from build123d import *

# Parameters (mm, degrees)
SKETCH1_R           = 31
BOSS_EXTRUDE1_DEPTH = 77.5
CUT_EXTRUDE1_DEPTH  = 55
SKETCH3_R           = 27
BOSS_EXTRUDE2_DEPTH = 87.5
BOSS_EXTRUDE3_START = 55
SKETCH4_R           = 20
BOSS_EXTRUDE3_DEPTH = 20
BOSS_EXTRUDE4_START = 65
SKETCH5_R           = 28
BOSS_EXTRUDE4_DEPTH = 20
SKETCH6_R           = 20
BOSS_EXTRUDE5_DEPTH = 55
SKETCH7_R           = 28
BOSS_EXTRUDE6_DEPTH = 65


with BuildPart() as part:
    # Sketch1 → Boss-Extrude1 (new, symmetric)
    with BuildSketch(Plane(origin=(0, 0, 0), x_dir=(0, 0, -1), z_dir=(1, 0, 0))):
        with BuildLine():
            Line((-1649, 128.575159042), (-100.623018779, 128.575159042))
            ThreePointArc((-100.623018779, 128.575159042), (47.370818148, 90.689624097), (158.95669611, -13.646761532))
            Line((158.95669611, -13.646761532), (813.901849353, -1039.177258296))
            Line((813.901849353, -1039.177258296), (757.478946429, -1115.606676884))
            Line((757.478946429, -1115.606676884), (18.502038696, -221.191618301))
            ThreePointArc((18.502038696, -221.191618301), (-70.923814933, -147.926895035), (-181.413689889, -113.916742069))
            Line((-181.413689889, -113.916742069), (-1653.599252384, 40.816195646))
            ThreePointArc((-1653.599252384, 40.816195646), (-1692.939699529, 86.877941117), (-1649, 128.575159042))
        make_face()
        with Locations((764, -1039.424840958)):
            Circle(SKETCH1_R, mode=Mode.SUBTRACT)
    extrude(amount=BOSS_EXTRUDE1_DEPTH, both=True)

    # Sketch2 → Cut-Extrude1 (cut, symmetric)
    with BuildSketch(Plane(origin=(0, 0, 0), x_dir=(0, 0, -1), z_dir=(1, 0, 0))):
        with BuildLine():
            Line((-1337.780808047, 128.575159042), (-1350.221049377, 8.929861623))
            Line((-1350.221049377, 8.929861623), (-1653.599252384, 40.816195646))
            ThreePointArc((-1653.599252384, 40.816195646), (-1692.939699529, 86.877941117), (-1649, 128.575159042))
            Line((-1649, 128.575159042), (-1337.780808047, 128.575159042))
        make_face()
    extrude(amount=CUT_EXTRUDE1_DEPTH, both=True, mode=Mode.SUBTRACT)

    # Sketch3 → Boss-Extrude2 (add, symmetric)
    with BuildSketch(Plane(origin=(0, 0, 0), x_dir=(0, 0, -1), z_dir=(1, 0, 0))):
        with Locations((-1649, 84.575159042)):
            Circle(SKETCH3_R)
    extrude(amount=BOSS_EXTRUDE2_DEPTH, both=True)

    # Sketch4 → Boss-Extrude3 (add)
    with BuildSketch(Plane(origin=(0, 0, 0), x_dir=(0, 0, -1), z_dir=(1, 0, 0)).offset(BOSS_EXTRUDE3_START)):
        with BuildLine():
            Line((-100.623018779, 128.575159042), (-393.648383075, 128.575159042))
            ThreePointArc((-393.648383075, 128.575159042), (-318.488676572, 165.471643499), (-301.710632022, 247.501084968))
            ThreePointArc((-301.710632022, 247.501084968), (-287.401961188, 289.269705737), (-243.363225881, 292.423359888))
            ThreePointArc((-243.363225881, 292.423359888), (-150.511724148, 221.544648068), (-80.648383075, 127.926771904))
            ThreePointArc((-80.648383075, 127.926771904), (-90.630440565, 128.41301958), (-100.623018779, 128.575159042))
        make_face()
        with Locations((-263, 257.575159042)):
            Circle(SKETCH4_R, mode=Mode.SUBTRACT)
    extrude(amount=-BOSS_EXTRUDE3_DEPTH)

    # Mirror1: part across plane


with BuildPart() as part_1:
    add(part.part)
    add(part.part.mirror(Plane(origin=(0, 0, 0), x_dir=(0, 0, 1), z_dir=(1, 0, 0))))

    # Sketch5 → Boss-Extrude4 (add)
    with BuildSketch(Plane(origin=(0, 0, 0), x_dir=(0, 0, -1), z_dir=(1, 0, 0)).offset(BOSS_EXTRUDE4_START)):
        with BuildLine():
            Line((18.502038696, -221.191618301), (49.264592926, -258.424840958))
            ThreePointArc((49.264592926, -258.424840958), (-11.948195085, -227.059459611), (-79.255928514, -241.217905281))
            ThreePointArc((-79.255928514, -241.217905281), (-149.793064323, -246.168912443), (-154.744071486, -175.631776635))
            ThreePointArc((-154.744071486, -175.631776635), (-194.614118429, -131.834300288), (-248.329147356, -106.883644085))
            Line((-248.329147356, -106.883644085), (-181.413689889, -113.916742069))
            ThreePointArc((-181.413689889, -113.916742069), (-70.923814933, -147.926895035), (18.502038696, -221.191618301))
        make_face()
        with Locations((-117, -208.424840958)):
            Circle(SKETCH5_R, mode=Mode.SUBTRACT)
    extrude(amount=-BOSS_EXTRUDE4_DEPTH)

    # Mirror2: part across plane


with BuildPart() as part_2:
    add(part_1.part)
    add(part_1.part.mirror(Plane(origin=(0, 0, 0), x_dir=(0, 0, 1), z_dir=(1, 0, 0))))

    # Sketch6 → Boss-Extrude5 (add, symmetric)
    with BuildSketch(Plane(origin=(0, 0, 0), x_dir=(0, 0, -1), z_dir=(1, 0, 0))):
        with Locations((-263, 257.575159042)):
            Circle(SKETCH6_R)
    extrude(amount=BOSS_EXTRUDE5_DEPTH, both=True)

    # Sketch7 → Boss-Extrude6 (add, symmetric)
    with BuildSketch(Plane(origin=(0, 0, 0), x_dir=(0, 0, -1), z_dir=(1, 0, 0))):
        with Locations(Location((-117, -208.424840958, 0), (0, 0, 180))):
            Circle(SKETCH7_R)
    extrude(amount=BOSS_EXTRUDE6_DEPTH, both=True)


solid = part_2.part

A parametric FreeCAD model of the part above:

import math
import FreeCAD as App
import Part
import Sketcher
from FreeCAD import Vector
Q = App.Units.Quantity

doc = App.newDocument("Part")
body = doc.addObject("PartDesign::Body", "Body")

# Sketch on YZ plane
sketch1 = body.newObject("Sketcher::SketchObject", "Sketch")
sketch1.AttachmentSupport = (doc.getObject("YZ_Plane"), [""])
sketch1.MapMode = "FlatFace"
sketch1.addGeometry(Part.LineSegment(Vector(128.575159, 100.623019, 0), Vector(128.575159, 1649, 0)), False)
sketch1.addGeometry(Part.ArcOfCircle(Part.Circle(Vector(84.575159, 1649, 0), Vector(0, 0, 1), 44), math.radians(0), math.radians(174)), False)
sketch1.addGeometry(Part.LineSegment(Vector(40.816196, 1653.599252, 0), Vector(-113.916742, 181.41369, 0)), False)
sketch1.addGeometry(Part.ArcOfCircle(Part.Circle(Vector(-412.273311, 212.772229, 0), Vector(0, 0, 1), 300), math.radians(-50.436057), math.radians(-6)), False)
sketch1.addGeometry(Part.LineSegment(Vector(-221.191618, -18.502039, 0), Vector(-1115.606677, -757.478946, 0)), False)
sketch1.addGeometry(Part.LineSegment(Vector(-1115.606677, -757.478946, 0), Vector(-1039.177258, -813.901849, 0)), False)
sketch1.addGeometry(Part.LineSegment(Vector(-1039.177258, -813.901849, 0), Vector(-13.646762, -158.956696, 0)), False)
sketch1.addGeometry(Part.ArcOfCircle(Part.Circle(Vector(-179.424841, 100.623019, 0), Vector(0, 0, 1), 308), math.radians(-57.436057), math.radians(0)), False)
sketch1.addGeometry(Part.Circle(Vector(-1039.424841, -764, 0), Vector(0, 0, 1), 31), False)
sketch1.addConstraint(Sketcher.Constraint("Tangent", 0, 2, 1, 1))
sketch1.addConstraint(Sketcher.Constraint("Tangent", 1, 2, 2, 1))
sketch1.addConstraint(Sketcher.Constraint("Tangent", 2, 2, 3, 2))
sketch1.addConstraint(Sketcher.Constraint("Tangent", 3, 1, 4, 1))
sketch1.addConstraint(Sketcher.Constraint("Coincident", 4, 2, 5, 1))
sketch1.addConstraint(Sketcher.Constraint("Coincident", 5, 2, 6, 1))
sketch1.addConstraint(Sketcher.Constraint("Tangent", 6, 2, 7, 1))
sketch1.addConstraint(Sketcher.Constraint("Tangent", 7, 2, 0, 1))
sketch1.addConstraint(Sketcher.Constraint("Vertical", 0))
sketch1.addConstraint(Sketcher.Constraint("Diameter", 8, 62.0))
sketch1.addConstraint(Sketcher.Constraint("Radius", 1, 44.0))
sketch1.addConstraint(Sketcher.Constraint("Radius", 3, 300.0))
sketch1.addConstraint(Sketcher.Constraint("Radius", 7, 308.0))
sketch1.addConstraint(Sketcher.Constraint("Angle", 2, Q("-96 deg")))
sketch1.addConstraint(Sketcher.Constraint("Distance", 5, 95.0))
sketch1.addConstraint(Sketcher.Constraint("DistanceY", -1, 1, 1, 3, 1649.0))
sketch1.addConstraint(Sketcher.Constraint("DistanceY", 8, 3, -1, 1, 764.0))
sketch1.addConstraint(Sketcher.Constraint("DistanceX", 8, 3, 7, 3, 860.0))
sketch1.addConstraint(Sketcher.Constraint("DistanceY", 0, 1, 0, 2, 1548.376981))
sketch1.addConstraint(Sketcher.Constraint("DistanceX", 7, 3, 2, 2, 65.508099))
sketch1.addConstraint(Sketcher.Constraint("Distance", 6, 1216.82618))
sketch1.addConstraint(Sketcher.Constraint("DistanceX", -1, 1, 1, 3, 84.575159))
sketch1.addConstraint(Sketcher.Constraint("DistanceX", 5, 2, -1, 1, 1039.177258))
sketch1.addConstraint(Sketcher.Constraint("DistanceX", 4, 2, 5, 2, 76.429419))
pad1 = body.newObject("PartDesign::Pad", "Pad")
pad1.Profile = sketch1
pad1.Length = 155
pad1.Midplane = True

# Sketch on YZ plane
sketch2 = body.newObject("Sketcher::SketchObject", "Sketch001")
sketch2.AttachmentSupport = (doc.getObject("YZ_Plane"), [""])
sketch2.MapMode = "FlatFace"
sketch2.addGeometry(Part.LineSegment(Vector(8.929862, 1350.221049, 0), Vector(128.575159, 1337.780808, 0)), False)
sketch2.addGeometry(Part.LineSegment(Vector(128.575159, 1337.780808, 0), Vector(128.575159, 1649, 0)), False)
sketch2.addGeometry(Part.ArcOfCircle(Part.Circle(Vector(84.575159, 1649, 0), Vector(0, 0, 1), 44), math.radians(0), math.radians(174)), False)
sketch2.addGeometry(Part.LineSegment(Vector(40.816196, 1653.599252, 0), Vector(8.929862, 1350.221049, 0)), False)
sketch2.addConstraint(Sketcher.Constraint("Coincident", 0, 2, 1, 1))
sketch2.addConstraint(Sketcher.Constraint("Tangent", 1, 2, 2, 1))
sketch2.addConstraint(Sketcher.Constraint("Tangent", 2, 2, 3, 1))
sketch2.addConstraint(Sketcher.Constraint("Coincident", 3, 2, 0, 1))
sketch2.addConstraint(Sketcher.Constraint("Vertical", 1))
sketch2.addConstraint(Sketcher.Constraint("Radius", 2, 44.0))
sketch2.addConstraint(Sketcher.Constraint("Angle", 3, Q("-96 deg")))
sketch2.addConstraint(Sketcher.Constraint("DistanceY", -1, 1, 2, 3, 1649.0))
sketch2.addConstraint(Sketcher.Constraint("DistanceY", 1, 1, 1, 2, 311.219192))
sketch2.addConstraint(Sketcher.Constraint("DistanceX", -1, 1, 2, 3, 84.575159))
sketch2.addConstraint(Sketcher.Constraint("DistanceX", -1, 1, 3, 2, 8.929862))
pocket1 = body.newObject("PartDesign::Pocket", "Pocket")
pocket1.Profile = sketch2
pocket1.Length = 110
pocket1.Midplane = True

# Sketch on YZ plane
sketch3 = body.newObject("Sketcher::SketchObject", "Sketch002")
sketch3.AttachmentSupport = (doc.getObject("YZ_Plane"), [""])
sketch3.MapMode = "FlatFace"
sketch3.addGeometry(Part.Circle(Vector(84.575159, 1649, 0), Vector(0, 0, 1), 27), False)
sketch3.addConstraint(Sketcher.Constraint("Diameter", 0, 54.0))
sketch3.addConstraint(Sketcher.Constraint("DistanceY", -1, 1, 0, 3, 1649.0))
sketch3.addConstraint(Sketcher.Constraint("DistanceX", -1, 1, 0, 3, 84.575159))
pad2 = body.newObject("PartDesign::Pad", "Pad001")
pad2.Profile = sketch3
pad2.Length = 175
pad2.Midplane = True

# Sketch on YZ plane
sketch4 = body.newObject("Sketcher::SketchObject", "Sketch003")
sketch4.AttachmentSupport = (doc.getObject("YZ_Plane"), [""])
sketch4.MapMode = "FlatFace"
sketch4.AttachmentOffset = App.Placement(Vector(0, 0, 55), App.Rotation())
sketch4.addGeometry(Part.LineSegment(Vector(128.575159, 393.648383, 0), Vector(128.575159, 100.623019, 0)), False)
sketch4.addGeometry(Part.ArcOfCircle(Part.Circle(Vector(-179.424842, 100.623019, 0), Vector(0, 0, 1), 308.000001), math.radians(-3.718396), math.radians(0)), False)
sketch4.addGeometry(Part.ArcOfCircle(Part.Circle(Vector(-75.225159, 450.531193, 0), Vector(0, 0, 1), 422), math.radians(-61.222947), math.radians(-29.401026)), False)
sketch4.addGeometry(Part.ArcOfCircle(Part.Circle(Vector(257.575159, 263, 0), Vector(0, 0, 1), 40), math.radians(-29.401026), math.radians(104.587122)), False)
sketch4.addGeometry(Part.ArcOfCircle(Part.Circle(Vector(223.575159, 393.648383, 0), Vector(0, 0, 1), 95), math.radians(180), math.radians(284.587122)), False)
sketch4.addGeometry(Part.Circle(Vector(257.575159, 263, 0), Vector(0, 0, 1), 20), False)
sketch4.addConstraint(Sketcher.Constraint("Tangent", 0, 2, 1, 2))
sketch4.addConstraint(Sketcher.Constraint("Coincident", 1, 1, 2, 1))
sketch4.addConstraint(Sketcher.Constraint("Tangent", 2, 2, 3, 1))
sketch4.addConstraint(Sketcher.Constraint("Tangent", 3, 2, 4, 2))
sketch4.addConstraint(Sketcher.Constraint("Tangent", 4, 1, 0, 1))
sketch4.addConstraint(Sketcher.Constraint("Vertical", 0))
sketch4.addConstraint(Sketcher.Constraint("Coincident", 5, 3, 3, 3))
sketch4.addConstraint(Sketcher.Constraint("Diameter", 5, 40.0))
sketch4.addConstraint(Sketcher.Constraint("Radius", 1, 308.000001))
sketch4.addConstraint(Sketcher.Constraint("Radius", 2, 422.0))
sketch4.addConstraint(Sketcher.Constraint("Radius", 3, 40.0))
sketch4.addConstraint(Sketcher.Constraint("Radius", 4, 95.0))
sketch4.addConstraint(Sketcher.Constraint("DistanceY", -1, 1, 3, 3, 263.0))
sketch4.addConstraint(Sketcher.Constraint("DistanceX", 1, 3, 3, 3, 437.000001))
sketch4.addConstraint(Sketcher.Constraint("DistanceY", 1, 1, 4, 3, 313.0))
sketch4.addConstraint(Sketcher.Constraint("DistanceY", 0, 2, 0, 1, 293.025364))
sketch4.addConstraint(Sketcher.Constraint("DistanceX", 1, 3, -1, 1, 179.424842))
pad3 = body.newObject("PartDesign::Pad", "Pad002")
pad3.Profile = sketch4
pad3.Length = 20
pad3.Reversed = True
body2 = doc.addObject("PartDesign::Body", "Body001")
doc.recompute()

body2.BaseFeature = body
doc.recompute()

mirroring = doc.addObject("Part::Mirroring", "Mirroring")
mirroring.Source = body
mirroring.Base = Vector(0, 0, 0)
mirroring.Normal = Vector(1, 0, 0)
body3 = doc.addObject("PartDesign::Body", "Body002")
body3.BaseFeature = mirroring
boolean = body2.newObject("PartDesign::Boolean", "Boolean")
boolean.Type = "Fuse"
boolean.addObjects([body3])
doc.recompute()

# Sketch on YZ plane
sketch5 = body2.newObject("Sketcher::SketchObject", "Sketch004")
sketch5.AttachmentSupport = (doc.getObject("YZ_Plane001"), [""])
sketch5.MapMode = "FlatFace"
sketch5.AttachmentOffset = App.Placement(Vector(0, 0, 65), App.Rotation())
sketch5.addGeometry(Part.LineSegment(Vector(-258.424841, -49.264593, 0), Vector(-221.191618, -18.502039, 0)), False)
sketch5.addGeometry(Part.ArcOfCircle(Part.Circle(Vector(-412.273311, 212.772229, 0), Vector(0, 0, 1), 300), math.radians(-50.436057), math.radians(-6)), False)
sketch5.addGeometry(Part.LineSegment(Vector(-113.916742, 181.41369, 0), Vector(-106.883644, 248.329147, 0)), False)
sketch5.addGeometry(Part.ArcOfCircle(Part.Circle(Vector(-252.721657, 283.418663, 0), Vector(0, 0, 1), 150), math.radians(-59.073869), math.radians(-13.528564)), False)
sketch5.addGeometry(Part.ArcOfCircle(Part.Circle(Vector(-208.424841, 117, 0), Vector(0, 0, 1), 50), math.radians(49.01501), math.radians(229.01501)), False)
sketch5.addGeometry(Part.ArcOfCircle(Part.Circle(Vector(-329.148544, 25.616365, 0), Vector(0, 0, 1), 103), math.radians(-46.635445), math.radians(31.384081)), False)
sketch5.addGeometry(Part.Circle(Vector(-208.424841, 117, 0), Vector(0, 0, 1), 28), False)
sketch5.addConstraint(Sketcher.Constraint("Tangent", 0, 2, 1, 1))
sketch5.addConstraint(Sketcher.Constraint("Tangent", 1, 2, 2, 1))
sketch5.addConstraint(Sketcher.Constraint("Coincident", 2, 2, 3, 2))
sketch5.addConstraint(Sketcher.Constraint("Coincident", 3, 1, 4, 1))
sketch5.addConstraint(Sketcher.Constraint("Coincident", 4, 2, 5, 2))
sketch5.addConstraint(Sketcher.Constraint("Coincident", 5, 1, 0, 1))
sketch5.addConstraint(Sketcher.Constraint("Coincident", 6, 3, 4, 3))
sketch5.addConstraint(Sketcher.Constraint("Diameter", 6, 56.0))
sketch5.addConstraint(Sketcher.Constraint("Radius", 1, 300.0))
sketch5.addConstraint(Sketcher.Constraint("Radius", 3, 150.0))
sketch5.addConstraint(Sketcher.Constraint("Radius", 4, 50.0))
sketch5.addConstraint(Sketcher.Constraint("Radius", 5, 103.0))
sketch5.addConstraint(Sketcher.Constraint("Angle", 2, Q("84 deg")))
sketch5.addConstraint(Sketcher.Constraint("DistanceY", -1, 1, 4, 3, 117.0))
sketch5.addConstraint(Sketcher.Constraint("DistanceX", 5, 1, 6, 3, 50.0))
sketch5.addConstraint(Sketcher.Constraint("DistanceY", 0, 2, 3, 3, 301.920701))
sketch5.addConstraint(Sketcher.Constraint("DistanceX", 4, 3, 1, 2, 94.508099))
sketch5.addConstraint(Sketcher.Constraint("DistanceX", 5, 3, 1, 2, 215.231802))
sketch5.addConstraint(Sketcher.Constraint("Distance", 0, 48.297491))
sketch5.addConstraint(Sketcher.Constraint("DistanceX", 1, 3, -1, 1, 412.273311))
sketch5.addConstraint(Sketcher.Constraint("DistanceY", -1, 1, 1, 3, 212.772229))
sketch5.addConstraint(Sketcher.Constraint("DistanceX", 3, 3, 0, 2, 31.530038))
pad4 = body2.newObject("PartDesign::Pad", "Pad003")
pad4.Profile = sketch5
pad4.Length = 20
pad4.Reversed = True
body4 = doc.addObject("PartDesign::Body", "Body003")
doc.recompute()

body4.BaseFeature = body2
doc.recompute()

mirroring2 = doc.addObject("Part::Mirroring", "Mirroring001")
mirroring2.Source = body2
mirroring2.Base = Vector(0, 0, 0)
mirroring2.Normal = Vector(1, 0, 0)
body5 = doc.addObject("PartDesign::Body", "Body004")
body5.BaseFeature = mirroring2
boolean2 = body4.newObject("PartDesign::Boolean", "Boolean001")
boolean2.Type = "Fuse"
boolean2.addObjects([body5])
doc.recompute()

# Sketch on YZ plane
sketch6 = body4.newObject("Sketcher::SketchObject", "Sketch005")
sketch6.AttachmentSupport = (doc.getObject("YZ_Plane003"), [""])
sketch6.MapMode = "FlatFace"
sketch6.addGeometry(Part.Circle(Vector(257.575159, 263, 0), Vector(0, 0, 1), 20), False)
sketch6.addConstraint(Sketcher.Constraint("Diameter", 0, 40.0))
sketch6.addConstraint(Sketcher.Constraint("DistanceY", -1, 1, 0, 3, 263.0))
sketch6.addConstraint(Sketcher.Constraint("DistanceX", -1, 1, 0, 3, 257.575159))
pad5 = body4.newObject("PartDesign::Pad", "Pad004")
pad5.Profile = sketch6
pad5.Length = 110
pad5.Midplane = True

# Sketch on YZ plane
sketch7 = body4.newObject("Sketcher::SketchObject", "Sketch006")
sketch7.AttachmentSupport = (doc.getObject("YZ_Plane003"), [""])
sketch7.MapMode = "FlatFace"
sketch7.addGeometry(Part.Circle(Vector(-208.424841, 117, 0), Vector(0, 0, 1), 28), False)
sketch7.addConstraint(Sketcher.Constraint("Diameter", 0, 56.0))
sketch7.addConstraint(Sketcher.Constraint("DistanceY", -1, 1, 0, 3, 117.0))
sketch7.addConstraint(Sketcher.Constraint("DistanceX", 0, 3, -1, 1, 208.424841))
pad6 = body4.newObject("PartDesign::Pad", "Pad005")
pad6.Profile = sketch7
pad6.Length = 130
pad6.Midplane = True
mirroring.Visibility = False
mirroring2.Visibility = False

doc.recompute()
